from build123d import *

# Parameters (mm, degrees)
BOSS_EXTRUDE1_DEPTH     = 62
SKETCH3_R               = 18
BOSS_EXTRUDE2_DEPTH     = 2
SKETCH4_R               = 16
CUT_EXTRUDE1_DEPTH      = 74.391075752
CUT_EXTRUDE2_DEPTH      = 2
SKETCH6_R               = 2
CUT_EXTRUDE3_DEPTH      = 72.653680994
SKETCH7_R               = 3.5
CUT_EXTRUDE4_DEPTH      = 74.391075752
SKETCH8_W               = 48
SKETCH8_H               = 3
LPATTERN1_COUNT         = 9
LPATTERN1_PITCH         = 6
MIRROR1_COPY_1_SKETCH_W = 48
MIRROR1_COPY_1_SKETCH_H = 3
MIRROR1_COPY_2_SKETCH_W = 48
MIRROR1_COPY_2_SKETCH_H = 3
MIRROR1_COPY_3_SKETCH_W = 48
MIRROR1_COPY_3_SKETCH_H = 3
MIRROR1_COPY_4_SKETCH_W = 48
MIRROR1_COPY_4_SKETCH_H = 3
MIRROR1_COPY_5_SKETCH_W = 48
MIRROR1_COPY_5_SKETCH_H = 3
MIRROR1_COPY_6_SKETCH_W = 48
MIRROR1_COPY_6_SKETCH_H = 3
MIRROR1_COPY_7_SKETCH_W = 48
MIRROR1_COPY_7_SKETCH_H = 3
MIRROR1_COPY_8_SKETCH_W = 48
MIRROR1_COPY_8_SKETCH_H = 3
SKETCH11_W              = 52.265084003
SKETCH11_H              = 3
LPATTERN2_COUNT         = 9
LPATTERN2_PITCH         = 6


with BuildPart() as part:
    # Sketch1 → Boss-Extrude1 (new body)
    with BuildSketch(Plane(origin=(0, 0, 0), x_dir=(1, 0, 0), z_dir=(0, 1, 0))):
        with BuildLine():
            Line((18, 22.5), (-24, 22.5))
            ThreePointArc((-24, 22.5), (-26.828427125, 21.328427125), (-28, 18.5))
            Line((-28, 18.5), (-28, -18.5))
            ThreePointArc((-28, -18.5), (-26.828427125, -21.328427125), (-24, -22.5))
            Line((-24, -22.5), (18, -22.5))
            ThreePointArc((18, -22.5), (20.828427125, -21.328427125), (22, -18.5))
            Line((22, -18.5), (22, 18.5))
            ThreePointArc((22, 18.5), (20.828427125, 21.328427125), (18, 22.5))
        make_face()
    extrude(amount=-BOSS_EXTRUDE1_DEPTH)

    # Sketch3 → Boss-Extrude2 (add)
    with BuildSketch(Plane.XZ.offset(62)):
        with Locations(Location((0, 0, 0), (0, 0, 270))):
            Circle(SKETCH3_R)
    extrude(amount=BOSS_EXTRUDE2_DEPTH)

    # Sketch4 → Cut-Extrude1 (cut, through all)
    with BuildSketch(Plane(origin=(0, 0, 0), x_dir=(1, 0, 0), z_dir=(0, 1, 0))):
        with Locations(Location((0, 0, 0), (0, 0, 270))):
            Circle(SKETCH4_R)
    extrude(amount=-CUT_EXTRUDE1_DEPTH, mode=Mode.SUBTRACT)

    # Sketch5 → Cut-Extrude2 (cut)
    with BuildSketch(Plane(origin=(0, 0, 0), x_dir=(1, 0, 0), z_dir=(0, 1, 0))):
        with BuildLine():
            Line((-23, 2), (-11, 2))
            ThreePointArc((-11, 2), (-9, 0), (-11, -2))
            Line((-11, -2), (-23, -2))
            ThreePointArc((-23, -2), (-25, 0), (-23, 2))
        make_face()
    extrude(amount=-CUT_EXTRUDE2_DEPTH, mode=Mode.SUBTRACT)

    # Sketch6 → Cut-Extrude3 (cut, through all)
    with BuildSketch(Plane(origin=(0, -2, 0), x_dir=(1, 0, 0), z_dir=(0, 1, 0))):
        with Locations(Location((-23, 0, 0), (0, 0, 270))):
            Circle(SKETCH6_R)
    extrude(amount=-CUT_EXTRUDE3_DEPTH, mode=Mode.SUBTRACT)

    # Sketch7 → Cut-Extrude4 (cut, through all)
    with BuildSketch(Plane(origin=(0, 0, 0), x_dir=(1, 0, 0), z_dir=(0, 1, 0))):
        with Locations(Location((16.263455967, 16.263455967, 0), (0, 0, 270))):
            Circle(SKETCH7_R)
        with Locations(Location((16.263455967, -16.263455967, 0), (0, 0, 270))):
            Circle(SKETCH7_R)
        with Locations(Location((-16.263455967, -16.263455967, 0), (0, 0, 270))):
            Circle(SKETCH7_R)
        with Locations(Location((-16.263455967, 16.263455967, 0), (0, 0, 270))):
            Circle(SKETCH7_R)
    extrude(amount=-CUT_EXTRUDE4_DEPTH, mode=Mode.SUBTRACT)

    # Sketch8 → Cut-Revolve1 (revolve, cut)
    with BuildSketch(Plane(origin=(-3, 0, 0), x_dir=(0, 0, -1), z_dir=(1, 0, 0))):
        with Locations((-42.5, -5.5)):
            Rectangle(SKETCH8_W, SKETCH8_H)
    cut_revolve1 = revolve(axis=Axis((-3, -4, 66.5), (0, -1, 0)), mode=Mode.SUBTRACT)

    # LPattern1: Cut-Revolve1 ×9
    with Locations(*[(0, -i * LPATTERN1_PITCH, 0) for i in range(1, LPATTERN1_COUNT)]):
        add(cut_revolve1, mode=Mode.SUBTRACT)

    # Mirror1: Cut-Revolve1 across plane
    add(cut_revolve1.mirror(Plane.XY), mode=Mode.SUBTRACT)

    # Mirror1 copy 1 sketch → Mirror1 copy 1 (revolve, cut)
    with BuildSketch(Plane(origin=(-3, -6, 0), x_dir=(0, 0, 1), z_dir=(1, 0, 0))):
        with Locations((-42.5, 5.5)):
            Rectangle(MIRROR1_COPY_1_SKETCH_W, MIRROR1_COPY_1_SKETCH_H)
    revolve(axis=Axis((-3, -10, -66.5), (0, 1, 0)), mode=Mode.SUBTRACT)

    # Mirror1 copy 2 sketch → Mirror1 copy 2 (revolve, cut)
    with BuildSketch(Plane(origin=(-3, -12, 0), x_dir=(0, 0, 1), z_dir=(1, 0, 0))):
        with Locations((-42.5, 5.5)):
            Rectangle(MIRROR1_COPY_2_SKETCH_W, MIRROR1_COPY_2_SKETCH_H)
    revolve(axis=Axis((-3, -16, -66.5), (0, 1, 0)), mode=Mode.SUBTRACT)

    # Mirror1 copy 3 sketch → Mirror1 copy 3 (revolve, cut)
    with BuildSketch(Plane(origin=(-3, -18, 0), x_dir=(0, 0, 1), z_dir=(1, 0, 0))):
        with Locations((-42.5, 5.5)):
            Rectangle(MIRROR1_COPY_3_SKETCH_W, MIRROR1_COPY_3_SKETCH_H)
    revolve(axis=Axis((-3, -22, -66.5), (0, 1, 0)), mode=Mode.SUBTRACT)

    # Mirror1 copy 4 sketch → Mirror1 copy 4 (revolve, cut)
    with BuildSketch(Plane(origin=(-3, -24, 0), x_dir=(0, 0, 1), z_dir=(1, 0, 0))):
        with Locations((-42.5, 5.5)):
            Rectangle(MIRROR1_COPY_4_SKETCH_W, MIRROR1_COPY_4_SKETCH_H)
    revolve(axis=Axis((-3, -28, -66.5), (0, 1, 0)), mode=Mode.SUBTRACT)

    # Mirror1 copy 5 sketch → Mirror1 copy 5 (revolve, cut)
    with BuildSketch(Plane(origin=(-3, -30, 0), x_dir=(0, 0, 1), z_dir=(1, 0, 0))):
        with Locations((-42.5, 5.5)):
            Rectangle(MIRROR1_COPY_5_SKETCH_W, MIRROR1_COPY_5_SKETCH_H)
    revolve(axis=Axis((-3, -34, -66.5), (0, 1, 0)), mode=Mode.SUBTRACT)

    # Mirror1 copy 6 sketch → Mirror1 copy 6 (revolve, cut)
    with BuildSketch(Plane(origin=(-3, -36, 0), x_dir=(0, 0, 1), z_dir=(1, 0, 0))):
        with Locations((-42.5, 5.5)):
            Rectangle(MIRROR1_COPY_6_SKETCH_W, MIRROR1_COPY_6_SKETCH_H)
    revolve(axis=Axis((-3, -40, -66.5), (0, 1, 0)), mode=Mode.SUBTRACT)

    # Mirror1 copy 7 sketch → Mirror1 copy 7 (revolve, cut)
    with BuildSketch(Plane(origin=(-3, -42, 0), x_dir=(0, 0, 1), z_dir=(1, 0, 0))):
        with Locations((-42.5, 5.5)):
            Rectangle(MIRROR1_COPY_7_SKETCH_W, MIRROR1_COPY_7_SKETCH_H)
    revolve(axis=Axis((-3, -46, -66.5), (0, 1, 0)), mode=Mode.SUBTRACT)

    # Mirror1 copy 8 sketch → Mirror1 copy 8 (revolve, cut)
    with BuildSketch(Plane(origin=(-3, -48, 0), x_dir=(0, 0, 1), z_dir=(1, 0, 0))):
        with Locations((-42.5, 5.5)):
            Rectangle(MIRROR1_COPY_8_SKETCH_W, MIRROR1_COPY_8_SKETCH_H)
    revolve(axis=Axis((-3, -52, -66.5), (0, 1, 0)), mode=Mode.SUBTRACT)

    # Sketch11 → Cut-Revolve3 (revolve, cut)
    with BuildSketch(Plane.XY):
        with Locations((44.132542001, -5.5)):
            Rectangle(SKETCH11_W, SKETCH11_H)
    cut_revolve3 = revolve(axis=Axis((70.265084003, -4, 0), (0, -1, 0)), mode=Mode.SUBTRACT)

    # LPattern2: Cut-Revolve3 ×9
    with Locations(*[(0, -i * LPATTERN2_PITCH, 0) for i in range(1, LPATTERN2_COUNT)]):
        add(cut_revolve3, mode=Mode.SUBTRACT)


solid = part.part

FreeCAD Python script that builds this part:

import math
import FreeCAD as App
import Part
import Sketcher

V = App.Vector


def add_polygon(sketch, points):
    """Adds a closed chain of lines whose ends are joined by coincident constraints."""
    first, n = sketch.GeometryCount, len(points)
    for a, b in zip(points, points[1:] + points[:1]):
        sketch.addGeometry(Part.LineSegment(App.Vector(*a, 0), App.Vector(*b, 0)), False)
    for i in range(n):
        sketch.addConstraint(Sketcher.Constraint("Coincident", first + i, 2, first + (i + 1) % n, 1))

doc = App.newDocument("Part")
body = doc.addObject("PartDesign::Body", "Body")

sketch1 = body.newObject("Sketcher::SketchObject", "Sketch")
sketch1.AttachmentSupport = (doc.getObject("XZ_Plane"), [""])
sketch1.MapMode = "FlatFace"
sketch1.addGeometry([
    Part.LineSegment(V(18, -22.5, 0), V(-24, -22.5, 0)),
    Part.ArcOfCircle(Part.Circle(V(-24, -18.5, 0), V(0, 0, 1), 4), math.radians(180), math.radians(270)),
    Part.LineSegment(V(-28, -18.5, 0), V(-28, 18.5, 0)),
    Part.ArcOfCircle(Part.Circle(V(-24, 18.5, 0), V(0, 0, 1), 4), math.radians(90), math.radians(180)),
    Part.LineSegment(V(-24, 22.5, 0), V(18, 22.5, 0)),
    Part.ArcOfCircle(Part.Circle(V(18, 18.5, 0), V(0, 0, 1), 4), math.radians(0), math.radians(90)),
    Part.LineSegment(V(22, 18.5, 0), V(22, -18.5, 0)),
    Part.ArcOfCircle(Part.Circle(V(18, -18.5, 0), V(0, 0, 1), 4), math.radians(-90), math.radians(0)),
], False)
sketch1.addConstraint([
    Sketcher.Constraint("Tangent", 0, 2, 1, 2),
    Sketcher.Constraint("Tangent", 1, 1, 2, 1),
    Sketcher.Constraint("Tangent", 2, 2, 3, 2),
    Sketcher.Constraint("Tangent", 3, 1, 4, 1),
    Sketcher.Constraint("Tangent", 4, 2, 5, 2),
    Sketcher.Constraint("Tangent", 5, 1, 6, 1),
    Sketcher.Constraint("Tangent", 6, 2, 7, 2),
    Sketcher.Constraint("Tangent", 7, 1, 0, 1),
    Sketcher.Constraint("Horizontal", 0),
    Sketcher.Constraint("Vertical", 2),
    Sketcher.Constraint("Horizontal", 4),
    Sketcher.Constraint("Vertical", 6),
    Sketcher.Constraint("Equal", 1, 3),
    Sketcher.Constraint("Equal", 3, 5),
    Sketcher.Constraint("Equal", 5, 7),
    Sketcher.Constraint("Radius", 1, 4.0),
    Sketcher.Constraint("DistanceX", 0, 2, 0, 1, 42.0),
    Sketcher.Constraint("DistanceY", 2, 1, 2, 2, 37.0),
    Sketcher.Constraint("DistanceX", 1, 3, -1, 1, 24.0),
    Sketcher.Constraint("DistanceY", 1, 3, -1, 1, 18.5),
])
pad1 = body.newObject("PartDesign::Pad", "Pad")
pad1.Profile = sketch1
pad1.Length = 62

sketch2 = body.newObject("Sketcher::SketchObject", "Sketch001")
sketch2.AttachmentSupport = (doc.getObject("XZ_Plane"), [""])
sketch2.MapMode = "FlatFace"
sketch2.AttachmentOffset = App.Placement(V(0, 0, 62), App.Rotation())
sketch2.addGeometry(Part.Circle(V(0, 0, 0), V(0, 0, 1), 18), False)
sketch2.addConstraint([
    Sketcher.Constraint("Coincident", 0, 3, -1, 1),
    Sketcher.Constraint("Diameter", 0, 36.0),
])
pad2 = body.newObject("PartDesign::Pad", "Pad001")
pad2.Profile = sketch2
pad2.Length = 2

sketch3 = body.newObject("Sketcher::SketchObject", "Sketch002")
sketch3.AttachmentSupport = (doc.getObject("XZ_Plane"), [""])
sketch3.MapMode = "FlatFace"
sketch3.addGeometry(Part.Circle(V(0, 0, 0), V(0, 0, 1), 16), False)
sketch3.addConstraint([
    Sketcher.Constraint("Coincident", 0, 3, -1, 1),
    Sketcher.Constraint("Diameter", 0, 32.0),
])
pocket1 = body.newObject("PartDesign::Pocket", "Pocket")
pocket1.Profile = sketch3
pocket1.Type = "ThroughAll"
pocket1.Reversed = True

sketch4 = body.newObject("Sketcher::SketchObject", "Sketch003")
sketch4.AttachmentSupport = (doc.getObject("XZ_Plane"), [""])
sketch4.MapMode = "FlatFace"
sketch4.addGeometry([
    Part.LineSegment(V(-11, -2, 0), V(-23, -2, 0)),
    Part.ArcOfCircle(Part.Circle(V(-23, 0, 0), V(0, 0, 1), 2), math.radians(90), math.radians(270)),
    Part.LineSegment(V(-23, 2, 0), V(-11, 2, 0)),
    Part.ArcOfCircle(Part.Circle(V(-11, 0, 0), V(0, 0, 1), 2), math.radians(-90), math.radians(90)),
], False)
sketch4.addConstraint([
    Sketcher.Constraint("Tangent", 0, 2, 1, 2),
    Sketcher.Constraint("Tangent", 1, 1, 2, 1),
    Sketcher.Constraint("Tangent", 2, 2, 3, 2),
    Sketcher.Constraint("Tangent", 3, 1, 0, 1),
    Sketcher.Constraint("Horizontal", 0),
    Sketcher.Constraint("Horizontal", 2),
    Sketcher.Constraint("PointOnObject", 1, 3, -1),
    Sketcher.Constraint("Radius", 1, 2.0),
    Sketcher.Constraint("DistanceX", 0, 2, 0, 1, 12.0),
    Sketcher.Constraint("DistanceX", 1, 3, -1, 1, 23.0),
])
pocket2 = body.newObject("PartDesign::Pocket", "Pocket001")
pocket2.Profile = sketch4
pocket2.Length = 2
pocket2.Reversed = True

sketch5 = body.newObject("Sketcher::SketchObject", "Sketch004")
sketch5.AttachmentSupport = (doc.getObject("XZ_Plane"), [""])
sketch5.MapMode = "FlatFace"
sketch5.AttachmentOffset = App.Placement(V(0, 0, 2), App.Rotation())
sketch5.addGeometry(Part.Circle(V(-23, 0, 0), V(0, 0, 1), 2), False)
sketch5.addConstraint([
    Sketcher.Constraint("PointOnObject", 0, 3, -1),
    Sketcher.Constraint("Diameter", 0, 4.0),
    Sketcher.Constraint("DistanceX", 0, 3, -1, 1, 23.0),
])
pocket3 = body.newObject("PartDesign::Pocket", "Pocket002")
pocket3.Profile = sketch5
pocket3.Type = "ThroughAll"
pocket3.Reversed = True

sketch6 = body.newObject("Sketcher::SketchObject", "Sketch005")
sketch6.AttachmentSupport = (doc.getObject("XZ_Plane"), [""])
sketch6.MapMode = "FlatFace"
sketch6.addGeometry([
    Part.Circle(V(16.3, -16.3, 0), V(0, 0, 1), 3.5),
    Part.Circle(V(16.3, 16.3, 0), V(0, 0, 1), 3.5),
    Part.Circle(V(-16.3, 16.3, 0), V(0, 0, 1), 3.5),
    Part.Circle(V(-16.3, -16.3, 0), V(0, 0, 1), 3.5),
], False)
sketch6.addConstraint([
    Sketcher.Constraint("Equal", 0, 1),
    Sketcher.Constraint("Equal", 1, 2),
    Sketcher.Constraint("Equal", 2, 3),
    Sketcher.Constraint("Symmetric", 0, 3, 2, 3, -1, 1),
    Sketcher.Constraint("Symmetric", 1, 3, 3, 3, -1, 1),
    Sketcher.Constraint("Symmetric", 1, 3, 2, 3, -2),
    Sketcher.Constraint("Diameter", 0, 7.0),
    Sketcher.Constraint("DistanceY", 0, 3, 1, 3, 32.526912),
    Sketcher.Constraint("DistanceX", 2, 3, 1, 3, 32.526912),
])
pocket4 = body.newObject("PartDesign::Pocket", "Pocket003")
pocket4.Profile = sketch6
pocket4.Type = "ThroughAll"
pocket4.Reversed = True

sketch7 = body.newObject("Sketcher::SketchObject", "Sketch006")
sketch7.AttachmentSupport = (doc.getObject("YZ_Plane"), [""])
sketch7.MapMode = "FlatFace"
sketch7.AttachmentOffset = App.Placement(V(0, 0, -3), App.Rotation())
add_polygon(sketch7, [(-4, 66.5), (-7, 66.5), (-7, 18.5), (-4, 18.5)])
sketch7.addGeometry(Part.LineSegment(V(-4, 66.5, 0), V(-7, 66.5, 0)), True)
sketch7.addConstraint([
    Sketcher.Constraint("Horizontal", 0),
    Sketcher.Constraint("Vertical", 1),
    Sketcher.Constraint("Horizontal", 2),
    Sketcher.Constraint("Vertical", 3),
    Sketcher.Constraint("Horizontal", 4),
    Sketcher.Constraint("Coincident", 4, 1, 3, 2),
    Sketcher.Constraint("Vertical", 1, 2, 4, 2),
    Sketcher.Constraint("DistanceX", 0, 2, 0, 1, 3.0),
    Sketcher.Constraint("DistanceY", 1, 2, 1, 1, 48.0),
    Sketcher.Constraint("DistanceX", 0, 2, -1, 1, 7.0),
    Sketcher.Constraint("DistanceY", -1, 1, 0, 2, 66.5),
])
groove = body.newObject("PartDesign::Groove", "Groove")
groove.Profile = sketch7
groove.ReferenceAxis = (sketch7, ["Axis0"])
groove.Angle = 360
doc.recompute()

linearpattern = body.newObject("PartDesign::LinearPattern", "LinearPattern")
linearpattern.Originals = [groove]
linearpattern.Direction = (doc.getObject("Y_Axis"), [""])
linearpattern.Mode = "offset"
linearpattern.Offset = 6
linearpattern.Occurrences = 9
linearpattern.Reversed = True
body.Tip = linearpattern
doc.recompute()

mirrored = body.newObject("PartDesign::Mirrored", "Mirrored")
mirrored.Originals = [groove]
mirrored.MirrorPlane = (doc.getObject("XY_Plane"), [""])
body.Tip = mirrored

sketch8 = body.newObject("Sketcher::SketchObject", "Sketch007")
sketch8.AttachmentSupport = (doc.getObject("YZ_Plane"), [""])
sketch8.MapMode = "FlatFace"
sketch8.AttachmentOffset = App.Placement(V(0, 0, -3), App.Rotation())
add_polygon(sketch8, [(-13, -66.5), (-10, -66.5), (-10, -18.5), (-13, -18.5)])
sketch8.addGeometry(Part.LineSegment(V(-13, -66.5, 0), V(-10, -66.5, 0)), True)
sketch8.addConstraint([
    Sketcher.Constraint("Horizontal", 0),
    Sketcher.Constraint("Vertical", 1),
    Sketcher.Constraint("Horizontal", 2),
    Sketcher.Constraint("Vertical", 3),
    Sketcher.Constraint("Horizontal", 4),
    Sketcher.Constraint("Coincident", 4, 1, 3, 2),
    Sketcher.Constraint("Vertical", 1, 2, 4, 2),
    Sketcher.Constraint("DistanceX", 0, 1, 0, 2, 3.0),
    Sketcher.Constraint("DistanceY", 1, 1, 1, 2, 48.0),
    Sketcher.Constraint("DistanceX", 0, 2, -1, 1, 10.0),
    Sketcher.Constraint("DistanceY", 0, 2, -1, 1, 66.5),
])
groove2 = body.newObject("PartDesign::Groove", "Groove001")
groove2.Profile = sketch8
groove2.ReferenceAxis = (sketch8, ["Axis0"])
groove2.Angle = 360

sketch9 = body.newObject("Sketcher::SketchObject", "Sketch008")
sketch9.AttachmentSupport = (doc.getObject("YZ_Plane"), [""])
sketch9.MapMode = "FlatFace"
sketch9.AttachmentOffset = App.Placement(V(0, 0, -3), App.Rotation())
add_polygon(sketch9, [(-19, -66.5), (-16, -66.5), (-16, -18.5), (-19, -18.5)])
sketch9.addGeometry(Part.LineSegment(V(-19, -66.5, 0), V(-16, -66.5, 0)), True)
sketch9.addConstraint([
    Sketcher.Constraint("Horizontal", 0),
    Sketcher.Constraint("Vertical", 1),
    Sketcher.Constraint("Horizontal", 2),
    Sketcher.Constraint("Vertical", 3),
    Sketcher.Constraint("Horizontal", 4),
    Sketcher.Constraint("Coincident", 4, 1, 3, 2),
    Sketcher.Constraint("Vertical", 1, 2, 4, 2),
    Sketcher.Constraint("DistanceX", 0, 1, 0, 2, 3.0),
    Sketcher.Constraint("DistanceY", 1, 1, 1, 2, 48.0),
    Sketcher.Constraint("DistanceX", 0, 2, -1, 1, 16.0),
    Sketcher.Constraint("DistanceY", 0, 2, -1, 1, 66.5),
])
groove3 = body.newObject("PartDesign::Groove", "Groove002")
groove3.Profile = sketch9
groove3.ReferenceAxis = (sketch9, ["Axis0"])
groove3.Angle = 360

sketch10 = body.newObject("Sketcher::SketchObject", "Sketch009")
sketch10.AttachmentSupport = (doc.getObject("YZ_Plane"), [""])
sketch10.MapMode = "FlatFace"
sketch10.AttachmentOffset = App.Placement(V(0, 0, -3), App.Rotation())
add_polygon(sketch10, [(-25, -66.5), (-22, -66.5), (-22, -18.5), (-25, -18.5)])
sketch10.addGeometry(Part.LineSegment(V(-25, -66.5, 0), V(-22, -66.5, 0)), True)
sketch10.addConstraint([
    Sketcher.Constraint("Horizontal", 0),
    Sketcher.Constraint("Vertical", 1),
    Sketcher.Constraint("Horizontal", 2),
    Sketcher.Constraint("Vertical", 3),
    Sketcher.Constraint("Horizontal", 4),
    Sketcher.Constraint("Coincident", 4, 1, 3, 2),
    Sketcher.Constraint("Vertical", 1, 2, 4, 2),
    Sketcher.Constraint("DistanceX", 0, 1, 0, 2, 3.0),
    Sketcher.Constraint("DistanceY", 1, 1, 1, 2, 48.0),
    Sketcher.Constraint("DistanceX", 0, 2, -1, 1, 22.0),
    Sketcher.Constraint("DistanceY", 0, 2, -1, 1, 66.5),
])
groove4 = body.newObject("PartDesign::Groove", "Groove003")
groove4.Profile = sketch10
groove4.ReferenceAxis = (sketch10, ["Axis0"])
groove4.Angle = 360

sketch11 = body.newObject("Sketcher::SketchObject", "Sketch010")
sketch11.AttachmentSupport = (doc.getObject("YZ_Plane"), [""])
sketch11.MapMode = "FlatFace"
sketch11.AttachmentOffset = App.Placement(V(0, 0, -3), App.Rotation())
add_polygon(sketch11, [(-31, -66.5), (-28, -66.5), (-28, -18.5), (-31, -18.5)])
sketch11.addGeometry(Part.LineSegment(V(-31, -66.5, 0), V(-28, -66.5, 0)), True)
sketch11.addConstraint([
    Sketcher.Constraint("Horizontal", 0),
    Sketcher.Constraint("Vertical", 1),
    Sketcher.Constraint("Horizontal", 2),
    Sketcher.Constraint("Vertical", 3),
    Sketcher.Constraint("Horizontal", 4),
    Sketcher.Constraint("Coincident", 4, 1, 3, 2),
    Sketcher.Constraint("Vertical", 1, 2, 4, 2),
    Sketcher.Constraint("DistanceX", 0, 1, 0, 2, 3.0),
    Sketcher.Constraint("DistanceY", 1, 1, 1, 2, 48.0),
    Sketcher.Constraint("DistanceX", 0, 2, -1, 1, 28.0),
    Sketcher.Constraint("DistanceY", 0, 2, -1, 1, 66.5),
])
groove5 = body.newObject("PartDesign::Groove", "Groove004")
groove5.Profile = sketch11
groove5.ReferenceAxis = (sketch11, ["Axis0"])
groove5.Angle = 360

sketch12 = body.newObject("Sketcher::SketchObject", "Sketch011")
sketch12.AttachmentSupport = (doc.getObject("YZ_Plane"), [""])
sketch12.MapMode = "FlatFace"
sketch12.AttachmentOffset = App.Placement(V(0, 0, -3), App.Rotation())
add_polygon(sketch12, [(-37, -66.5), (-34, -66.5), (-34, -18.5), (-37, -18.5)])
sketch12.addGeometry(Part.LineSegment(V(-37, -66.5, 0), V(-34, -66.5, 0)), True)
sketch12.addConstraint([
    Sketcher.Constraint("Horizontal", 0),
    Sketcher.Constraint("Vertical", 1),
    Sketcher.Constraint("Horizontal", 2),
    Sketcher.Constraint("Vertical", 3),
    Sketcher.Constraint("Horizontal", 4),
    Sketcher.Constraint("Coincident", 4, 1, 3, 2),
    Sketcher.Constraint("Vertical", 1, 2, 4, 2),
    Sketcher.Constraint("DistanceX", 0, 1, 0, 2, 3.0),
    Sketcher.Constraint("DistanceY", 1, 1, 1, 2, 48.0),
    Sketcher.Constraint("DistanceX", 0, 2, -1, 1, 34.0),
    Sketcher.Constraint("DistanceY", 0, 2, -1, 1, 66.5),
])
groove6 = body.newObject("PartDesign::Groove", "Groove005")
groove6.Profile = sketch12
groove6.ReferenceAxis = (sketch12, ["Axis0"])
groove6.Angle = 360

sketch13 = body.newObject("Sketcher::SketchObject", "Sketch012")
sketch13.AttachmentSupport = (doc.getObject("YZ_Plane"), [""])
sketch13.MapMode = "FlatFace"
sketch13.AttachmentOffset = App.Placement(V(0, 0, -3), App.Rotation())
add_polygon(sketch13, [(-43, -66.5), (-40, -66.5), (-40, -18.5), (-43, -18.5)])
sketch13.addGeometry(Part.LineSegment(V(-43, -66.5, 0), V(-40, -66.5, 0)), True)
sketch13.addConstraint([
    Sketcher.Constraint("Horizontal", 0),
    Sketcher.Constraint("Vertical", 1),
    Sketcher.Constraint("Horizontal", 2),
    Sketcher.Constraint("Vertical", 3),
    Sketcher.Constraint("Horizontal", 4),
    Sketcher.Constraint("Coincident", 4, 1, 3, 2),
    Sketcher.Constraint("Vertical", 1, 2, 4, 2),
    Sketcher.Constraint("DistanceX", 0, 1, 0, 2, 3.0),
    Sketcher.Constraint("DistanceY", 1, 1, 1, 2, 48.0),
    Sketcher.Constraint("DistanceX", 0, 2, -1, 1, 40.0),
    Sketcher.Constraint("DistanceY", 0, 2, -1, 1, 66.5),
])
groove7 = body.newObject("PartDesign::Groove", "Groove006")
groove7.Profile = sketch13
groove7.ReferenceAxis = (sketch13, ["Axis0"])
groove7.Angle = 360

sketch14 = body.newObject("Sketcher::SketchObject", "Sketch013")
sketch14.AttachmentSupport = (doc.getObject("YZ_Plane"), [""])
sketch14.MapMode = "FlatFace"
sketch14.AttachmentOffset = App.Placement(V(0, 0, -3), App.Rotation())
add_polygon(sketch14, [(-49, -66.5), (-46, -66.5), (-46, -18.5), (-49, -18.5)])
sketch14.addGeometry(Part.LineSegment(V(-49, -66.5, 0), V(-46, -66.5, 0)), True)
sketch14.addConstraint([
    Sketcher.Constraint("Horizontal", 0),
    Sketcher.Constraint("Vertical", 1),
    Sketcher.Constraint("Horizontal", 2),
    Sketcher.Constraint("Vertical", 3),
    Sketcher.Constraint("Horizontal", 4),
    Sketcher.Constraint("Coincident", 4, 1, 3, 2),
    Sketcher.Constraint("Vertical", 1, 2, 4, 2),
    Sketcher.Constraint("DistanceX", 0, 1, 0, 2, 3.0),
    Sketcher.Constraint("DistanceY", 1, 1, 1, 2, 48.0),
    Sketcher.Constraint("DistanceX", 0, 2, -1, 1, 46.0),
    Sketcher.Constraint("DistanceY", 0, 2, -1, 1, 66.5),
])
groove8 = body.newObject("PartDesign::Groove", "Groove007")
groove8.Profile = sketch14
groove8.ReferenceAxis = (sketch14, ["Axis0"])
groove8.Angle = 360

sketch15 = body.newObject("Sketcher::SketchObject", "Sketch014")
sketch15.AttachmentSupport = (doc.getObject("YZ_Plane"), [""])
sketch15.MapMode = "FlatFace"
sketch15.AttachmentOffset = App.Placement(V(0, 0, -3), App.Rotation())
add_polygon(sketch15, [(-55, -66.5), (-52, -66.5), (-52, -18.5), (-55, -18.5)])
sketch15.addGeometry(Part.LineSegment(V(-55, -66.5, 0), V(-52, -66.5, 0)), True)
sketch15.addConstraint([
    Sketcher.Constraint("Horizontal", 0),
    Sketcher.Constraint("Vertical", 1),
    Sketcher.Constraint("Horizontal", 2),
    Sketcher.Constraint("Vertical", 3),
    Sketcher.Constraint("Horizontal", 4),
    Sketcher.Constraint("Coincident", 4, 1, 3, 2),
    Sketcher.Constraint("Vertical", 1, 2, 4, 2),
    Sketcher.Constraint("DistanceX", 0, 1, 0, 2, 3.0),
    Sketcher.Constraint("DistanceY", 1, 1, 1, 2, 48.0),
    Sketcher.Constraint("DistanceX", 0, 2, -1, 1, 52.0),
    Sketcher.Constraint("DistanceY", 0, 2, -1, 1, 66.5),
])
groove9 = body.newObject("PartDesign::Groove", "Groove008")
groove9.Profile = sketch15
groove9.ReferenceAxis = (sketch15, ["Axis0"])
groove9.Angle = 360

sketch16 = body.newObject("Sketcher::SketchObject", "Sketch015")
sketch16.AttachmentSupport = (doc.getObject("XY_Plane"), [""])
sketch16.MapMode = "FlatFace"
add_polygon(sketch16, [(18, -4), (18, -7), (70.3, -7), (70.3, -4)])
sketch16.addGeometry(Part.LineSegment(V(70.3, -4, 0), V(70.3, -7, 0)), True)
sketch16.addConstraint([
    Sketcher.Constraint("Vertical", 0),
    Sketcher.Constraint("Horizontal", 1),
    Sketcher.Constraint("Vertical", 2),
    Sketcher.Constraint("Horizontal", 3),
    Sketcher.Constraint("Vertical", 4),
    Sketcher.Constraint("Coincident", 4, 1, 2, 2),
    Sketcher.Constraint("Horizontal", 0, 2, 4, 2),
    Sketcher.Constraint("DistanceY", 0, 2, 0, 1, 3.0),
    Sketcher.Constraint("DistanceX", -1, 1, 0, 2, 18.0),
    Sketcher.Constraint("DistanceY", 0, 2, -1, 1, 7.0),
    Sketcher.Constraint("DistanceX", 1, 1, 1, 2, 52.265084),
])
groove10 = body.newObject("PartDesign::Groove", "Groove009")
groove10.Profile = sketch16
groove10.ReferenceAxis = (sketch16, ["Axis0"])
groove10.Angle = 360
doc.recompute()

linearpattern2 = body.newObject("PartDesign::LinearPattern", "LinearPattern001")
linearpattern2.Originals = [groove10]
linearpattern2.Direction = (doc.getObject("Y_Axis"), [""])
linearpattern2.Mode = "offset"
linearpattern2.Offset = 6
linearpattern2.Occurrences = 9
linearpattern2.Reversed = True
body.Tip = linearpattern2

doc.recompute()
